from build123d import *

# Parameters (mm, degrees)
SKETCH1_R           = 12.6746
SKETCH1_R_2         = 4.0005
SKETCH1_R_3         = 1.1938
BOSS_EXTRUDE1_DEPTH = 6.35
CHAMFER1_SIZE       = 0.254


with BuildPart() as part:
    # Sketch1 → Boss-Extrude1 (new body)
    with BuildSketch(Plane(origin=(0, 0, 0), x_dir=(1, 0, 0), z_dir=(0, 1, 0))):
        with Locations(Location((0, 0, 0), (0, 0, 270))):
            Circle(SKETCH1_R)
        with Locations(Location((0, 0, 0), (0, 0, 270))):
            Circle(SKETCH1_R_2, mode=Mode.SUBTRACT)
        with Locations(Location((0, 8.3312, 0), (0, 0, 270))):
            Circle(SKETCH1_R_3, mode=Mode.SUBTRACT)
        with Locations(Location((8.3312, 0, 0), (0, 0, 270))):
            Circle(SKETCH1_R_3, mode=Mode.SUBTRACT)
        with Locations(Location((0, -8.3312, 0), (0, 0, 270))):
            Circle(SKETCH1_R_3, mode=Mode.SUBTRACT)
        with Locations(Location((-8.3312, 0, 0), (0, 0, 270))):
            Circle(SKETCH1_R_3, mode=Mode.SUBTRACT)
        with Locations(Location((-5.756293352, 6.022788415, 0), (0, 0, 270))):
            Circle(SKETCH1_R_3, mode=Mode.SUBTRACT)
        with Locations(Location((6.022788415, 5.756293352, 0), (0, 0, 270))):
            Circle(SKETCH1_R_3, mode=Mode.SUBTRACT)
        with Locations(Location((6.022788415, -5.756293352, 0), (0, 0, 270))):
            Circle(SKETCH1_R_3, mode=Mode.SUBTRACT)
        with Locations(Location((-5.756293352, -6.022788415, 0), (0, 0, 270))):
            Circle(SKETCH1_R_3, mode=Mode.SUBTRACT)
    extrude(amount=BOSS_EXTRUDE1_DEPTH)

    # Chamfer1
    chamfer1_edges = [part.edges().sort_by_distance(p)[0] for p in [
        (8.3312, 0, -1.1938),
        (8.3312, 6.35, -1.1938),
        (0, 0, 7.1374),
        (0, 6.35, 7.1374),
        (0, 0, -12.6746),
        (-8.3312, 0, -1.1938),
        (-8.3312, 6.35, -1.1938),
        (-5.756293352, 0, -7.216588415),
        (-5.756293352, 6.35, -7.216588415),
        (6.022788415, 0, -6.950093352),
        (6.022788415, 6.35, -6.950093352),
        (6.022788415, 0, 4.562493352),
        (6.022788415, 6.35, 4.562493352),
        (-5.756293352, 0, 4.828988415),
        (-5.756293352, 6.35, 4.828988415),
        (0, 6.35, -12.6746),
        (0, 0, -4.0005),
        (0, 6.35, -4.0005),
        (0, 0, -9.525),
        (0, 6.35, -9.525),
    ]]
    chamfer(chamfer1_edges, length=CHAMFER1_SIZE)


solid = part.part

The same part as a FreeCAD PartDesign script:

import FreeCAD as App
import Part
import Sketcher
from FreeCAD import Vector
Q = App.Units.Quantity


def edges_at(feature, points):
    """Names of the edges that pass closest to the given points."""
    edges = feature.Shape.Edges
    near = lambda p: min(range(len(edges)), key=lambda i: edges[i].distToShape(Part.Vertex(*p))[0])
    return sorted({f"Edge{near(p) + 1}" for p in points})

doc = App.newDocument("Part")
params = doc.addObject("Spreadsheet::Sheet", "Params")
for row, (alias, value) in enumerate([
    ("sketch1_diameter", "0.998 in"),
    ("sketch1_diameter2", "0.094 in"),
    ("sketch1_diameter3", "0.315 in"),
    ("pad1_length", "0.25 in"),
    ("chamfer_size", "0.01 in"),
], start=1):
    params.set(f"A{row}", alias)
    params.set(f"B{row}", "=" + value)
    params.setAlias(f"B{row}", alias)

body = doc.addObject("PartDesign::Body", "Body")

sketch1 = body.newObject("Sketcher::SketchObject", "Sketch")
sketch1.AttachmentSupport = (doc.getObject("XZ_Plane"), [""])
sketch1.MapMode = "FlatFace"
sketch1.addGeometry([
    Part.Circle(Vector(0, 0, 0), Vector(0, 0, 1), 12.7),
    Part.Circle(Vector(-5.8, -6, 0), Vector(0, 0, 1), 1.2),
    Part.Circle(Vector(0, -8.3, 0), Vector(0, 0, 1), 1.2),
    Part.Circle(Vector(-8.3, 0, 0), Vector(0, 0, 1), 1.2),
    Part.Circle(Vector(-5.8, 6, 0), Vector(0, 0, 1), 1.2),
    Part.Circle(Vector(6, -5.8, 0), Vector(0, 0, 1), 1.2),
    Part.Circle(Vector(8.3, 0, 0), Vector(0, 0, 1), 1.2),
    Part.Circle(Vector(0, 0, 0), Vector(0, 0, 1), 4),
    Part.Circle(Vector(0, 8.3, 0), Vector(0, 0, 1), 1.2),
    Part.Circle(Vector(6, 5.8, 0), Vector(0, 0, 1), 1.2),
], False)
sketch1.addConstraint([
    Sketcher.Constraint("Coincident", 0, 3, -1, 1),
    Sketcher.Constraint("Coincident", 7, 3, -1, 1),
    Sketcher.Constraint("Equal", 1, 2),
    Sketcher.Constraint("Equal", 2, 3),
    Sketcher.Constraint("Equal", 3, 4),
    Sketcher.Constraint("Equal", 4, 5),
    Sketcher.Constraint("Equal", 5, 6),
    Sketcher.Constraint("Equal", 6, 8),
    Sketcher.Constraint("Equal", 8, 9),
    Sketcher.Constraint("Symmetric", 3, 3, 6, 3, -1, 1),
    Sketcher.Constraint("Symmetric", 2, 3, 8, 3, -1, 1),
    Sketcher.Constraint("Symmetric", 1, 3, 4, 3, -1),
    Sketcher.Constraint("Symmetric", 5, 3, 9, 3, -1),
    Sketcher.Constraint("PointOnObject", 2, 3, -2),
    Sketcher.Constraint("PointOnObject", 3, 3, -1),
    Sketcher.Constraint("Diameter", 0, Q("0.998 in")),
    Sketcher.Constraint("Diameter", 1, Q("0.094 in")),
    Sketcher.Constraint("Diameter", 7, Q("0.315 in")),
    Sketcher.Constraint("DistanceY", 2, 3, -1, 1, Q("0.328 in")),
    Sketcher.Constraint("DistanceX", 3, 3, -1, 1, Q("0.328 in")),
    Sketcher.Constraint("DistanceY", 1, 3, -1, 1, 6.022788),
    Sketcher.Constraint("DistanceX", -1, 1, 5, 3, 6.022788),
    Sketcher.Constraint("DistanceX", 1, 3, 5, 3, 11.779082),
    Sketcher.Constraint("DistanceY", 5, 3, 4, 3, 11.779082),
])
sketch1.setExpression("Constraints[15]", "Params.sketch1_diameter")
sketch1.setExpression("Constraints[16]", "Params.sketch1_diameter2")
sketch1.setExpression("Constraints[17]", "Params.sketch1_diameter3")
pad1 = body.newObject("PartDesign::Pad", "Pad")
pad1.Profile = sketch1
pad1.setExpression("Length", "Params.pad1_length")
pad1.Reversed = True
doc.recompute()

chamfer = body.newObject("PartDesign::Chamfer", "Chamfer")
chamfer.Base = (pad1, edges_at(pad1, [
    (8.331, 0, -1.194),
    (8.331, 6.35, -1.194),
    (0, 0, 7.137),
    (0, 6.35, 7.137),
    (0, 0, -12.675),
    (-8.331, 0, -1.194),
    (-8.331, 6.35, -1.194),
    (-5.756, 0, -7.217),
    (-5.756, 6.35, -7.217),
    (6.023, 0, -6.95),
    (6.023, 6.35, -6.95),
    (6.023, 0, 4.562),
    (6.023, 6.35, 4.562),
    (-5.756, 0, 4.829),
    (-5.756, 6.35, 4.829),
    (0, 6.35, -12.675),
    (0, 0, -4),
    (0, 6.35, -4),
    (0, 0, -9.525),
    (0, 6.35, -9.525),
]))
chamfer.setExpression("Size", "Params.chamfer_size")

doc.recompute()
